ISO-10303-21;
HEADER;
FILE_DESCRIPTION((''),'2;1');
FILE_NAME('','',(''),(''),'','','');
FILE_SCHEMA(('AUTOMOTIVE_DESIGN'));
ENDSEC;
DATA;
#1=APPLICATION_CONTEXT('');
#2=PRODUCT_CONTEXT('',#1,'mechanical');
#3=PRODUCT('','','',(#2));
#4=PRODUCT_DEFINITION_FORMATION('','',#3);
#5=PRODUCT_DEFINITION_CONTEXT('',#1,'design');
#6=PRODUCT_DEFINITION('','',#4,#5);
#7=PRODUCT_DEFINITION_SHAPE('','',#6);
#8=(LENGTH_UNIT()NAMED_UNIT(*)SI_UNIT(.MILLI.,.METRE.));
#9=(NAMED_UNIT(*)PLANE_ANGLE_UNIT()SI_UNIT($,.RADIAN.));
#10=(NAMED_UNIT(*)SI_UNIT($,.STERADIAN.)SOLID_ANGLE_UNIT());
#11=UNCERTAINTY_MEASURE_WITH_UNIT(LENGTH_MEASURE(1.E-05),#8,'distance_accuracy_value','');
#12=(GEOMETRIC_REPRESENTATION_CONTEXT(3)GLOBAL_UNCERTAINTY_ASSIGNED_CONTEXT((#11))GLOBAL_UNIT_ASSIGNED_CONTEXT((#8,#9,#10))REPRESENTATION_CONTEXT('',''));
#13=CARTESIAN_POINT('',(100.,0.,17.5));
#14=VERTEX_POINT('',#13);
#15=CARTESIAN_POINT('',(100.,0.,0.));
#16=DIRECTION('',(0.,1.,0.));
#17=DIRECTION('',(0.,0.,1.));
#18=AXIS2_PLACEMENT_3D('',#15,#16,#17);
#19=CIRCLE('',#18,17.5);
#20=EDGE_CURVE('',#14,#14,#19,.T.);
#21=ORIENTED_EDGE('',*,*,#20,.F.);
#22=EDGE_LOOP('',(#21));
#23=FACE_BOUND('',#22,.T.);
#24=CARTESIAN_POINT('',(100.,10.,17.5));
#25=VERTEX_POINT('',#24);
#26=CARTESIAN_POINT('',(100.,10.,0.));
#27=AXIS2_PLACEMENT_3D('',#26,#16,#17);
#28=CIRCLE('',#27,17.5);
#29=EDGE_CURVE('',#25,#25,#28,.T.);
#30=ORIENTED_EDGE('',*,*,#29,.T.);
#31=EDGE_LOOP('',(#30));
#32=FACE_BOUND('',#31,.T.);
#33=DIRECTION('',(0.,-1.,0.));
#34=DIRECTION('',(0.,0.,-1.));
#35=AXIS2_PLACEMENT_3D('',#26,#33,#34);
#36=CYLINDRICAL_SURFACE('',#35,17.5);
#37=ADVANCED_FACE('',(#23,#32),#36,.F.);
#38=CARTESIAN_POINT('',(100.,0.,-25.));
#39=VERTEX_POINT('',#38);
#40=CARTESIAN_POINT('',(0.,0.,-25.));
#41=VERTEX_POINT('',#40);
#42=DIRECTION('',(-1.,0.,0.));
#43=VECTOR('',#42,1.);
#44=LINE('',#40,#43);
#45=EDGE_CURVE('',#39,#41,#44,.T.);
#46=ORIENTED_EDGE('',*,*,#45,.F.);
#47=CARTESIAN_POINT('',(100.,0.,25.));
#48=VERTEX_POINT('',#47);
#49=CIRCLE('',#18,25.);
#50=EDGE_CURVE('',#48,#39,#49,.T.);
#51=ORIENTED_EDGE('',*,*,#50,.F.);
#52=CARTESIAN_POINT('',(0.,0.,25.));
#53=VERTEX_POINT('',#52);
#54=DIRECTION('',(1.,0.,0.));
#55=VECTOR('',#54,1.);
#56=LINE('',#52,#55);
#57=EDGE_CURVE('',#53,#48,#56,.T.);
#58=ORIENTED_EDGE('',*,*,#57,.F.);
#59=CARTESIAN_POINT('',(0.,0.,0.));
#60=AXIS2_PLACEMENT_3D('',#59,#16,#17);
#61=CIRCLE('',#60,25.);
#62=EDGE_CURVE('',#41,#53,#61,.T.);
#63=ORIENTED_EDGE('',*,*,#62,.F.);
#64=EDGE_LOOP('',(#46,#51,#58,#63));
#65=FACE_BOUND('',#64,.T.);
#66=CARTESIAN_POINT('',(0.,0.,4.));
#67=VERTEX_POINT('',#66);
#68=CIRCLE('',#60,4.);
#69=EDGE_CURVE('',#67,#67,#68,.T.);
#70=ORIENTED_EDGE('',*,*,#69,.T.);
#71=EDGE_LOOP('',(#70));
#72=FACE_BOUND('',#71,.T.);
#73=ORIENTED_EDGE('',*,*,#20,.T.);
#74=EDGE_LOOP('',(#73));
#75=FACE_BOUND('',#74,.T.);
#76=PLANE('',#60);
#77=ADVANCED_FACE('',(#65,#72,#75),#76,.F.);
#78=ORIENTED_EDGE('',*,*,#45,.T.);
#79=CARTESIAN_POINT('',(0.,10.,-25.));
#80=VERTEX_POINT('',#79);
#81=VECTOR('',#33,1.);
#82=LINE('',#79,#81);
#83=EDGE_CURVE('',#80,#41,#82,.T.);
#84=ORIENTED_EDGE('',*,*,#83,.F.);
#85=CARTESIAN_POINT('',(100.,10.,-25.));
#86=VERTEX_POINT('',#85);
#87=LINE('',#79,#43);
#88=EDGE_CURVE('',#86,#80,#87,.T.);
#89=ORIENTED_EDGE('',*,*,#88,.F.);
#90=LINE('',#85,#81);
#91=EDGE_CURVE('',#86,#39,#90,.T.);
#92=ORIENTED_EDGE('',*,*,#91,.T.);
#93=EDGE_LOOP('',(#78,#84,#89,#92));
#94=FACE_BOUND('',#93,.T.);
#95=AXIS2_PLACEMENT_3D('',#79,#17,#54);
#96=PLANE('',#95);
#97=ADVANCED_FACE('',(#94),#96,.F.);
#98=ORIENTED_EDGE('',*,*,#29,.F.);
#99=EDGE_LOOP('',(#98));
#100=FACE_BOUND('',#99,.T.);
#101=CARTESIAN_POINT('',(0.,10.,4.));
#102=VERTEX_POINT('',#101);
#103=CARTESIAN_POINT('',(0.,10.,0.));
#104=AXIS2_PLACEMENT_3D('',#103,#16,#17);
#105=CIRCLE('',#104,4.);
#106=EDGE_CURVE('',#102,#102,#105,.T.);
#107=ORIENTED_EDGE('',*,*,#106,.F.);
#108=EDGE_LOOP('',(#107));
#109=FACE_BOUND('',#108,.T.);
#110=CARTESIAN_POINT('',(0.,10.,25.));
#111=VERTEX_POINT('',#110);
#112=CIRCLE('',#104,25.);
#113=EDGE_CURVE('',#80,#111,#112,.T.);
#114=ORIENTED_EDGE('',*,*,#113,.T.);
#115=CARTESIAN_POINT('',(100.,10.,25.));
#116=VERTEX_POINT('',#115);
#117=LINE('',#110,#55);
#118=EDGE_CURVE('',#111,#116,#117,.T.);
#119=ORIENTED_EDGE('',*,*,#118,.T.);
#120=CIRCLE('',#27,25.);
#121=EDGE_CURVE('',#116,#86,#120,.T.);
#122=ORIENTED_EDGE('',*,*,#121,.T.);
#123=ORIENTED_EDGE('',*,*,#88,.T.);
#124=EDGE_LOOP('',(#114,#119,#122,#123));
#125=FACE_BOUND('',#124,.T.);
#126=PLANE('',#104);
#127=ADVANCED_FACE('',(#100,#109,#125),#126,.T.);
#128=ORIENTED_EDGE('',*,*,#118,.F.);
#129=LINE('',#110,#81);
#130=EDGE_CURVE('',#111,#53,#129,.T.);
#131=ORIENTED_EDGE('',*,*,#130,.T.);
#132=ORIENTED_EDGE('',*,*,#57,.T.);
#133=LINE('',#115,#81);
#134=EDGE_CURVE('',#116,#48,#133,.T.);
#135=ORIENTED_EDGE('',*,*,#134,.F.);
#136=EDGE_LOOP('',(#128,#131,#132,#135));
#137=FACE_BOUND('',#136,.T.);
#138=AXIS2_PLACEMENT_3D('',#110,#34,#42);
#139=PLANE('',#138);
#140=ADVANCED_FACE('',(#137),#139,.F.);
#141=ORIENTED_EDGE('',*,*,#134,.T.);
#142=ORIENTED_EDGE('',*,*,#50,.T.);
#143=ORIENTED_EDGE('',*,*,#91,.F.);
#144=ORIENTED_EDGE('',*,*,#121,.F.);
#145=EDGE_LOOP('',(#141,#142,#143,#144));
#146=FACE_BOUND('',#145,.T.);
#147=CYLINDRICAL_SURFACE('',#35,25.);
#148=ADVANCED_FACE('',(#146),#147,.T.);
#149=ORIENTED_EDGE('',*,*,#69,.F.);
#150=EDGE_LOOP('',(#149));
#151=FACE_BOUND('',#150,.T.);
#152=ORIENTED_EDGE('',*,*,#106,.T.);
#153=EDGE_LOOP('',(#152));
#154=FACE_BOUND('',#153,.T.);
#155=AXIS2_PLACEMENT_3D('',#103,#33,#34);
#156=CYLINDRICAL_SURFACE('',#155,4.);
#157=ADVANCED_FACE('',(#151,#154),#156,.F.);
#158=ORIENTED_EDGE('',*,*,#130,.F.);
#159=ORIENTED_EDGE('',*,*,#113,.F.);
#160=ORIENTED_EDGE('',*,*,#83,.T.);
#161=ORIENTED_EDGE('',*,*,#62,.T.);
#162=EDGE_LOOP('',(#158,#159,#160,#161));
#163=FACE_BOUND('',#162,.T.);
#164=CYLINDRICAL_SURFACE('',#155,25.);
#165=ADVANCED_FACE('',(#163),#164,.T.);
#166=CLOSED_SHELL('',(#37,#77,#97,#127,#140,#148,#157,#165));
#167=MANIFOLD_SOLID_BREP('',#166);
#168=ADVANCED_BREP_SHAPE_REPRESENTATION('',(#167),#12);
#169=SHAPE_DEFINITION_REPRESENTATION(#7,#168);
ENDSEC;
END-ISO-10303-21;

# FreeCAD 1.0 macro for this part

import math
import FreeCAD as App
import Part
import Sketcher

V = App.Vector

doc = App.newDocument("Part")
body = doc.addObject("PartDesign::Body", "Body")

# Sketch on XZ plane
sketch1 = body.newObject("Sketcher::SketchObject", "Sketch")
sketch1.AttachmentSupport = (doc.getObject("XZ_Plane"), [""])
sketch1.MapMode = "FlatFace"
sketch1.addGeometry([
    Part.LineSegment(V(100, -25, 0), V(0, -25, 0)),  # 0
    Part.ArcOfCircle(Part.Circle(V(0, 0, 0), V(0, 0, 1), 25), math.radians(90), math.radians(270)),  # 1
    Part.LineSegment(V(0, 25, 0), V(100, 25, 0)),  # 2
    Part.ArcOfCircle(Part.Circle(V(100, 0, 0), V(0, 0, 1), 25), math.radians(-90), math.radians(90)),  # 3
    Part.Circle(V(100, 0, 0), V(0, 0, 1), 17.5),  # 4
    Part.Circle(V(0, 0, 0), V(0, 0, 1), 4),  # 5
], False)
sketch1.addConstraint([
    Sketcher.Constraint("Tangent", 0, 2, 1, 2),
    Sketcher.Constraint("Tangent", 1, 1, 2, 1),
    Sketcher.Constraint("Tangent", 2, 2, 3, 2),
    Sketcher.Constraint("Tangent", 3, 1, 0, 1),
    Sketcher.Constraint("Horizontal", 0),
    Sketcher.Constraint("Horizontal", 2),
    Sketcher.Constraint("Coincident", 1, 3, -1, 1),
    Sketcher.Constraint("Coincident", 5, 3, -1, 1),
    Sketcher.Constraint("Coincident", 4, 3, 3, 3),
    Sketcher.Constraint("Diameter", 4, 35.0),
    Sketcher.Constraint("Diameter", 5, 8.0),
    Sketcher.Constraint("Radius", 1, 25.0),
    Sketcher.Constraint("DistanceX", 0, 2, 0, 1, 100.0),
])
pad1 = body.newObject("PartDesign::Pad", "Pad")
pad1.Profile = sketch1
pad1.Length = 10
pad1.Reversed = True

doc.recompute()
